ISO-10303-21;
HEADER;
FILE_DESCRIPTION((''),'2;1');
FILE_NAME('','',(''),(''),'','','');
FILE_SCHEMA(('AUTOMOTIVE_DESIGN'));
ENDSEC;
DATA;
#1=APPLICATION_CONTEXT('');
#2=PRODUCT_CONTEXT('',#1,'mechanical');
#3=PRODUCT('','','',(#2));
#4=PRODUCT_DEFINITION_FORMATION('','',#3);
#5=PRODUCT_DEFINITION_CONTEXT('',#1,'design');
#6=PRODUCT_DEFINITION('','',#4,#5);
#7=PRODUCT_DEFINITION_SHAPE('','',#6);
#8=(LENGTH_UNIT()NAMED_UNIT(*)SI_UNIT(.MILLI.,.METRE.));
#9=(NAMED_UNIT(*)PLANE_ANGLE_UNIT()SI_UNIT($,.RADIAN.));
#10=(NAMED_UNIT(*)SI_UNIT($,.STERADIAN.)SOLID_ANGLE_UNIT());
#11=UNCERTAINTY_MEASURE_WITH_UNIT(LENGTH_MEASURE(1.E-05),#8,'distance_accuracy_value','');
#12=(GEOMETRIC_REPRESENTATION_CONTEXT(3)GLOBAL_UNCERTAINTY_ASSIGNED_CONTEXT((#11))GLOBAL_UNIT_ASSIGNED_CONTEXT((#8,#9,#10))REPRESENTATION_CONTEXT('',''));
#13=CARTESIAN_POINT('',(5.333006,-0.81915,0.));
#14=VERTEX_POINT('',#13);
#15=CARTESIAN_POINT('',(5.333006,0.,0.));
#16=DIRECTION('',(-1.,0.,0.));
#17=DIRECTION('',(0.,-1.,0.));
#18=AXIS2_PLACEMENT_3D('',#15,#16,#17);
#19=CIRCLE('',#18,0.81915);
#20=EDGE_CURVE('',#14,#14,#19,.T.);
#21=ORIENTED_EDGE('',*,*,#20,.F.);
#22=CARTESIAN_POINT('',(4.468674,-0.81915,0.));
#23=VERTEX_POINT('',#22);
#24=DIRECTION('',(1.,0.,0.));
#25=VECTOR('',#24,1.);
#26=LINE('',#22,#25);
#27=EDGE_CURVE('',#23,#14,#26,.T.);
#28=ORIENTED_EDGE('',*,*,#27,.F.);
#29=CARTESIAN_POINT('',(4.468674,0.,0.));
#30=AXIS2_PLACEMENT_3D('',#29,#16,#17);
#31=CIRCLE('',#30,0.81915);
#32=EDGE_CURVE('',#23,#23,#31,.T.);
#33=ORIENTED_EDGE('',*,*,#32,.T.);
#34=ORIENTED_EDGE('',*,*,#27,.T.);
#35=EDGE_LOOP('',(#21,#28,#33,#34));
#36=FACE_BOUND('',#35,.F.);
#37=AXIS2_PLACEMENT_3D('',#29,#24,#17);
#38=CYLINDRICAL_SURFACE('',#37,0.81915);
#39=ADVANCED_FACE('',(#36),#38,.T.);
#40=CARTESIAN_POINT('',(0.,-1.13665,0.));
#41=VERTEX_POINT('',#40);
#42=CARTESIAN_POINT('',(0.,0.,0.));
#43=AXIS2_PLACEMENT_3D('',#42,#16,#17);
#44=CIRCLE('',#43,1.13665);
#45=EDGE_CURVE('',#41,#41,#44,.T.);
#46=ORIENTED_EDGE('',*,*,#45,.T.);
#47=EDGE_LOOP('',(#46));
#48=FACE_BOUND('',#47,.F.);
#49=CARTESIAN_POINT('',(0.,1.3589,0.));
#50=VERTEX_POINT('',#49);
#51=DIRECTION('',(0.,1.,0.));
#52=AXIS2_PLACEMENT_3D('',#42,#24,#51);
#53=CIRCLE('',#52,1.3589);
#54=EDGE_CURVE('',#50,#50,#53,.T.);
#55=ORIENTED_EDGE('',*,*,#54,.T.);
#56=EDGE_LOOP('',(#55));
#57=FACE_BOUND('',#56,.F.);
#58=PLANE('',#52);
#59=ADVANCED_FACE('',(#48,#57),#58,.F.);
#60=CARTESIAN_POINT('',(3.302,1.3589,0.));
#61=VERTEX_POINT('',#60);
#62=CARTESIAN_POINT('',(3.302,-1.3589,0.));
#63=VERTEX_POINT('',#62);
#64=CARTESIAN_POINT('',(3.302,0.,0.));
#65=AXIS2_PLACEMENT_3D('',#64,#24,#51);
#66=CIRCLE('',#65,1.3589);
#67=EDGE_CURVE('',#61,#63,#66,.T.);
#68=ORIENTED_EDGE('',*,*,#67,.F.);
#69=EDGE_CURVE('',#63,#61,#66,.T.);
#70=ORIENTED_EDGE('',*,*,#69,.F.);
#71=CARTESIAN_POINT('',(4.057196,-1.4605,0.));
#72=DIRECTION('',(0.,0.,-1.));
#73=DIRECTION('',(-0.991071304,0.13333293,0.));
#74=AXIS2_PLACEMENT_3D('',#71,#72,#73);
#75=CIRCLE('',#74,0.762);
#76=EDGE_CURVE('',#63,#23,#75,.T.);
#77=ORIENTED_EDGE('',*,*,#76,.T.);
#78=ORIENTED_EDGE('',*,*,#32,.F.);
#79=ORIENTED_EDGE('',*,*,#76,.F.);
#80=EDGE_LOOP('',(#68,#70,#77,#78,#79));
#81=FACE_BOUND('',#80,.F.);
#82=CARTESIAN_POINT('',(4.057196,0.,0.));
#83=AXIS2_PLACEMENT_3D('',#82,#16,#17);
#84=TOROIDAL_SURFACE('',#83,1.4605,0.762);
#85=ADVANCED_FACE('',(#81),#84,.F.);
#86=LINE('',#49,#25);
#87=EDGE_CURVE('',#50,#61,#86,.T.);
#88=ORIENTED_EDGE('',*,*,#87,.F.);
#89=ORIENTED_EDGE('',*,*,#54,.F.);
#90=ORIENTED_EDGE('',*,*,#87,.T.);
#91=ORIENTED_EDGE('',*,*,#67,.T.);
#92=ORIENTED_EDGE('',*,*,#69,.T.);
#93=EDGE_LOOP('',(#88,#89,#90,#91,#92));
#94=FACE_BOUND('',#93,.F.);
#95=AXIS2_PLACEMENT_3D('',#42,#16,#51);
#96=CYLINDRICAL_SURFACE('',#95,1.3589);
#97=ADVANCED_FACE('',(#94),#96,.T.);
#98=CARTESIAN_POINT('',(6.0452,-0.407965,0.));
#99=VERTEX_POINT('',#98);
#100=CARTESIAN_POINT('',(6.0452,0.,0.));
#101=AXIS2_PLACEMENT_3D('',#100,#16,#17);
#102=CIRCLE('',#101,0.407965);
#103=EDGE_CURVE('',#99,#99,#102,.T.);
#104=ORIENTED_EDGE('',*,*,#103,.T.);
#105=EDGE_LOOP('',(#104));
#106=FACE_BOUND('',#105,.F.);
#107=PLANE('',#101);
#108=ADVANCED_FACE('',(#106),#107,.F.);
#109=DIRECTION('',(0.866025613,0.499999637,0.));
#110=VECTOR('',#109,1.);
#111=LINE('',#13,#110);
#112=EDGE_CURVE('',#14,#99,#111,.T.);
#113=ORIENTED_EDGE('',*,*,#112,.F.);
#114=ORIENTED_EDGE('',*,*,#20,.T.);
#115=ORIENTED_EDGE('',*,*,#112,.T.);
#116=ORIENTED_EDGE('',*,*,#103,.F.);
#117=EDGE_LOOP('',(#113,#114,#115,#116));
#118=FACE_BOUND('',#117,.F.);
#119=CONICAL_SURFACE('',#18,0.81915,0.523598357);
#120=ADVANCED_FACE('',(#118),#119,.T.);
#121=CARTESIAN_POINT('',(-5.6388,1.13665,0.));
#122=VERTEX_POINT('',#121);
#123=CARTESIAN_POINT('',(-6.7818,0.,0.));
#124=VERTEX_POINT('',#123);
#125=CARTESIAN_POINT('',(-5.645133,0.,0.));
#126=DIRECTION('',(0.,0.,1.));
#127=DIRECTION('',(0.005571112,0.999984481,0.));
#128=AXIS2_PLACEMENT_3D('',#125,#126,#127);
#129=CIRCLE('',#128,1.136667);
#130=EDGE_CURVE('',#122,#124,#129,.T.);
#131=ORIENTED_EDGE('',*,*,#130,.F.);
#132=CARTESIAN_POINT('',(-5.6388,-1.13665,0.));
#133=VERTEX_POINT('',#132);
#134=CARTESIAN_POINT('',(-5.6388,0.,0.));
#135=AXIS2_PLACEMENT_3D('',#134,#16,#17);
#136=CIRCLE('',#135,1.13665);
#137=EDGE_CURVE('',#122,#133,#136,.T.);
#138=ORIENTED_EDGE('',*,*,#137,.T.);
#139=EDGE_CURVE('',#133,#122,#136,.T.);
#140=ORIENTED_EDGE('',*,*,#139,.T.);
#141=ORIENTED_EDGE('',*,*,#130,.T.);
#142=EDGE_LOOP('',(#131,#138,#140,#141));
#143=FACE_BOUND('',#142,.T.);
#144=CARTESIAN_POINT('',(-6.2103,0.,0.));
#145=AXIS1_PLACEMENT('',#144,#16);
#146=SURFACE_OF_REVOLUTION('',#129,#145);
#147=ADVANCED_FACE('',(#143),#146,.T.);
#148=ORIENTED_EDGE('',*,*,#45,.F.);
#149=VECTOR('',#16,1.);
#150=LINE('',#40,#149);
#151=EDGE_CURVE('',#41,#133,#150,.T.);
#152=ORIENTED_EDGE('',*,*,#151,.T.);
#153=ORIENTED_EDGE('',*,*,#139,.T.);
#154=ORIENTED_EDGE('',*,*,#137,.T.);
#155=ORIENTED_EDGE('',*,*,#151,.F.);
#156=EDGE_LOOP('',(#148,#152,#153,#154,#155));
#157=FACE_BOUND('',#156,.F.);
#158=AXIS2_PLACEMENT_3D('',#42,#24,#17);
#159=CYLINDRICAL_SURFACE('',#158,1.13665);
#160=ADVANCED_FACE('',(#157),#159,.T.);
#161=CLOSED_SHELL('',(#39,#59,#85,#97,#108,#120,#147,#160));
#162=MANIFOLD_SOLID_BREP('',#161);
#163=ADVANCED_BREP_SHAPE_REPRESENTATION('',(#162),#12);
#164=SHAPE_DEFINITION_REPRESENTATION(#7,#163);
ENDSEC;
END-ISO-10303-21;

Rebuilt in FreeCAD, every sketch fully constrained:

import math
import FreeCAD as App
import Part
import Sketcher
Q = App.Units.Quantity

doc = App.newDocument("Part")
body = doc.addObject("PartDesign::Body", "Body")

sketch1 = body.newObject("Sketcher::SketchObject", "Sketch")
sketch1.AttachmentSupport = (doc.getObject("YZ_Plane"), [""])
sketch1.MapMode = "FlatFace"
sketch1.addGeometry(Part.Circle(App.Vector(0, 0, 0), App.Vector(0, 0, 1), 1.4), False)
sketch1.addConstraint(Sketcher.Constraint("Coincident", 0, 3, -1, 1))
sketch1.addConstraint(Sketcher.Constraint("Diameter", 0, Q("0.107 in")))
pad1 = body.newObject("PartDesign::Pad", "Pad")
pad1.Profile = sketch1
pad1.Length = Q("0.13 in")

sketch2 = body.newObject("Sketcher::SketchObject", "Sketch001")
sketch2.AttachmentSupport = (doc.getObject("YZ_Plane"), [""])
sketch2.MapMode = "FlatFace"
sketch2.addGeometry(Part.Circle(App.Vector(0, 0, 0), App.Vector(0, 0, 1), 1.1), False)
sketch2.addConstraint(Sketcher.Constraint("Coincident", 0, 3, -1, 1))
sketch2.addConstraint(Sketcher.Constraint("Diameter", 0, Q("0.0895 in")))
pad2 = body.newObject("PartDesign::Pad", "Pad001")
pad2.Profile = sketch2
pad2.Length = Q("0.222 in")
pad2.Reversed = True

sketch3 = body.newObject("Sketcher::SketchObject", "Sketch002")
sketch3.AttachmentSupport = (doc.getObject("XY_Plane"), [""])
sketch3.MapMode = "FlatFace"
sketch3.addGeometry(Part.LineSegment(App.Vector(-6.8, 0, 0), App.Vector(-5.6, 0, 0)), False)
sketch3.addGeometry(Part.LineSegment(App.Vector(-5.6, 0, 0), App.Vector(-5.6, 1.1, 0)), False)
sketch3.addGeometry(Part.ArcOfCircle(Part.Circle(App.Vector(-5.6, 0, 0), App.Vector(0, 0, 1), 1.1), math.radians(90), math.radians(180)), False)
sketch3.addConstraint(Sketcher.Constraint("Coincident", 0, 2, 1, 1))
sketch3.addConstraint(Sketcher.Constraint("Coincident", 1, 2, 2, 1))
sketch3.addConstraint(Sketcher.Constraint("Coincident", 2, 2, 0, 1))
sketch3.addConstraint(Sketcher.Constraint("Horizontal", 0))
sketch3.addConstraint(Sketcher.Constraint("Vertical", 1))
sketch3.addConstraint(Sketcher.Constraint("PointOnObject", 2, 3, -1))
sketch3.addConstraint(Sketcher.Constraint("PointOnObject", 0, 2, -1))
sketch3.addConstraint(Sketcher.Constraint("DistanceX", 0, 1, 0, 2, Q("0.045 in")))
sketch3.addConstraint(Sketcher.Constraint("DistanceX", 0, 2, -1, 1, Q("0.222 in")))
sketch3.addConstraint(Sketcher.Constraint("Radius", 2, 1.136667))
revolution = body.newObject("PartDesign::Revolution", "Revolution")
revolution.Profile = sketch3
revolution.ReferenceAxis = (sketch3, ["H_Axis"])
revolution.Angle = 360

sketch4 = body.newObject("Sketcher::SketchObject", "Sketch003")
sketch4.AttachmentSupport = (doc.getObject("XY_Plane"), [""])
sketch4.MapMode = "FlatFace"
sketch4.addGeometry(Part.LineSegment(App.Vector(6.05, 0, 0), App.Vector(3.3, 0, 0)), False)
sketch4.addGeometry(Part.LineSegment(App.Vector(3.3, 0, 0), App.Vector(3.3, -1.36, 0)), False)
sketch4.addGeometry(Part.ArcOfCircle(Part.Circle(App.Vector(4.06, -1.46, 0), App.Vector(0, 0, 1), 0.76), math.radians(57), math.radians(172)), False)
sketch4.addGeometry(Part.LineSegment(App.Vector(4.47, -0.82, 0), App.Vector(5.33, -0.82, 0)), False)
sketch4.addGeometry(Part.LineSegment(App.Vector(5.33, -0.82, 0), App.Vector(6.05, -0.41, 0)), False)
sketch4.addGeometry(Part.LineSegment(App.Vector(6.05, -0.41, 0), App.Vector(6.05, 0, 0)), False)
sketch4.addConstraint(Sketcher.Constraint("Coincident", 0, 2, 1, 1))
sketch4.addConstraint(Sketcher.Constraint("Coincident", 1, 2, 2, 2))
sketch4.addConstraint(Sketcher.Constraint("Coincident", 2, 1, 3, 1))
sketch4.addConstraint(Sketcher.Constraint("Coincident", 3, 2, 4, 1))
sketch4.addConstraint(Sketcher.Constraint("Coincident", 4, 2, 5, 1))
sketch4.addConstraint(Sketcher.Constraint("Coincident", 5, 2, 0, 1))
sketch4.addConstraint(Sketcher.Constraint("Horizontal", 0))
sketch4.addConstraint(Sketcher.Constraint("Vertical", 1))
sketch4.addConstraint(Sketcher.Constraint("Horizontal", 3))
sketch4.addConstraint(Sketcher.Constraint("Vertical", 5))
sketch4.addConstraint(Sketcher.Constraint("PointOnObject", 0, 2, -1))
sketch4.addConstraint(Sketcher.Constraint("Radius", 2, Q("0.03 in")))
sketch4.addConstraint(Sketcher.Constraint("DistanceX", 0, 2, 0, 1, Q("0.108 in")))
sketch4.addConstraint(Sketcher.Constraint("DistanceX", -1, 1, 0, 2, Q("0.13 in")))
sketch4.addConstraint(Sketcher.Constraint("DistanceY", 1, 2, 1, 1, Q("0.0535 in")))
sketch4.addConstraint(Sketcher.Constraint("DistanceY", 2, 3, 1, 2, Q("0.004 in")))
sketch4.addConstraint(Sketcher.Constraint("DistanceX", 2, 3, 2, 1, Q("0.0161999 in")))
sketch4.addConstraint(Sketcher.Constraint("Distance", 4, 0.822371))
sketch4.addConstraint(Sketcher.Constraint("DistanceX", 3, 1, 3, 2, 0.864332))
revolution2 = body.newObject("PartDesign::Revolution", "Revolution001")
revolution2.Profile = sketch4
revolution2.ReferenceAxis = (sketch4, ["H_Axis"])
revolution2.Angle = 360

doc.recompute()
